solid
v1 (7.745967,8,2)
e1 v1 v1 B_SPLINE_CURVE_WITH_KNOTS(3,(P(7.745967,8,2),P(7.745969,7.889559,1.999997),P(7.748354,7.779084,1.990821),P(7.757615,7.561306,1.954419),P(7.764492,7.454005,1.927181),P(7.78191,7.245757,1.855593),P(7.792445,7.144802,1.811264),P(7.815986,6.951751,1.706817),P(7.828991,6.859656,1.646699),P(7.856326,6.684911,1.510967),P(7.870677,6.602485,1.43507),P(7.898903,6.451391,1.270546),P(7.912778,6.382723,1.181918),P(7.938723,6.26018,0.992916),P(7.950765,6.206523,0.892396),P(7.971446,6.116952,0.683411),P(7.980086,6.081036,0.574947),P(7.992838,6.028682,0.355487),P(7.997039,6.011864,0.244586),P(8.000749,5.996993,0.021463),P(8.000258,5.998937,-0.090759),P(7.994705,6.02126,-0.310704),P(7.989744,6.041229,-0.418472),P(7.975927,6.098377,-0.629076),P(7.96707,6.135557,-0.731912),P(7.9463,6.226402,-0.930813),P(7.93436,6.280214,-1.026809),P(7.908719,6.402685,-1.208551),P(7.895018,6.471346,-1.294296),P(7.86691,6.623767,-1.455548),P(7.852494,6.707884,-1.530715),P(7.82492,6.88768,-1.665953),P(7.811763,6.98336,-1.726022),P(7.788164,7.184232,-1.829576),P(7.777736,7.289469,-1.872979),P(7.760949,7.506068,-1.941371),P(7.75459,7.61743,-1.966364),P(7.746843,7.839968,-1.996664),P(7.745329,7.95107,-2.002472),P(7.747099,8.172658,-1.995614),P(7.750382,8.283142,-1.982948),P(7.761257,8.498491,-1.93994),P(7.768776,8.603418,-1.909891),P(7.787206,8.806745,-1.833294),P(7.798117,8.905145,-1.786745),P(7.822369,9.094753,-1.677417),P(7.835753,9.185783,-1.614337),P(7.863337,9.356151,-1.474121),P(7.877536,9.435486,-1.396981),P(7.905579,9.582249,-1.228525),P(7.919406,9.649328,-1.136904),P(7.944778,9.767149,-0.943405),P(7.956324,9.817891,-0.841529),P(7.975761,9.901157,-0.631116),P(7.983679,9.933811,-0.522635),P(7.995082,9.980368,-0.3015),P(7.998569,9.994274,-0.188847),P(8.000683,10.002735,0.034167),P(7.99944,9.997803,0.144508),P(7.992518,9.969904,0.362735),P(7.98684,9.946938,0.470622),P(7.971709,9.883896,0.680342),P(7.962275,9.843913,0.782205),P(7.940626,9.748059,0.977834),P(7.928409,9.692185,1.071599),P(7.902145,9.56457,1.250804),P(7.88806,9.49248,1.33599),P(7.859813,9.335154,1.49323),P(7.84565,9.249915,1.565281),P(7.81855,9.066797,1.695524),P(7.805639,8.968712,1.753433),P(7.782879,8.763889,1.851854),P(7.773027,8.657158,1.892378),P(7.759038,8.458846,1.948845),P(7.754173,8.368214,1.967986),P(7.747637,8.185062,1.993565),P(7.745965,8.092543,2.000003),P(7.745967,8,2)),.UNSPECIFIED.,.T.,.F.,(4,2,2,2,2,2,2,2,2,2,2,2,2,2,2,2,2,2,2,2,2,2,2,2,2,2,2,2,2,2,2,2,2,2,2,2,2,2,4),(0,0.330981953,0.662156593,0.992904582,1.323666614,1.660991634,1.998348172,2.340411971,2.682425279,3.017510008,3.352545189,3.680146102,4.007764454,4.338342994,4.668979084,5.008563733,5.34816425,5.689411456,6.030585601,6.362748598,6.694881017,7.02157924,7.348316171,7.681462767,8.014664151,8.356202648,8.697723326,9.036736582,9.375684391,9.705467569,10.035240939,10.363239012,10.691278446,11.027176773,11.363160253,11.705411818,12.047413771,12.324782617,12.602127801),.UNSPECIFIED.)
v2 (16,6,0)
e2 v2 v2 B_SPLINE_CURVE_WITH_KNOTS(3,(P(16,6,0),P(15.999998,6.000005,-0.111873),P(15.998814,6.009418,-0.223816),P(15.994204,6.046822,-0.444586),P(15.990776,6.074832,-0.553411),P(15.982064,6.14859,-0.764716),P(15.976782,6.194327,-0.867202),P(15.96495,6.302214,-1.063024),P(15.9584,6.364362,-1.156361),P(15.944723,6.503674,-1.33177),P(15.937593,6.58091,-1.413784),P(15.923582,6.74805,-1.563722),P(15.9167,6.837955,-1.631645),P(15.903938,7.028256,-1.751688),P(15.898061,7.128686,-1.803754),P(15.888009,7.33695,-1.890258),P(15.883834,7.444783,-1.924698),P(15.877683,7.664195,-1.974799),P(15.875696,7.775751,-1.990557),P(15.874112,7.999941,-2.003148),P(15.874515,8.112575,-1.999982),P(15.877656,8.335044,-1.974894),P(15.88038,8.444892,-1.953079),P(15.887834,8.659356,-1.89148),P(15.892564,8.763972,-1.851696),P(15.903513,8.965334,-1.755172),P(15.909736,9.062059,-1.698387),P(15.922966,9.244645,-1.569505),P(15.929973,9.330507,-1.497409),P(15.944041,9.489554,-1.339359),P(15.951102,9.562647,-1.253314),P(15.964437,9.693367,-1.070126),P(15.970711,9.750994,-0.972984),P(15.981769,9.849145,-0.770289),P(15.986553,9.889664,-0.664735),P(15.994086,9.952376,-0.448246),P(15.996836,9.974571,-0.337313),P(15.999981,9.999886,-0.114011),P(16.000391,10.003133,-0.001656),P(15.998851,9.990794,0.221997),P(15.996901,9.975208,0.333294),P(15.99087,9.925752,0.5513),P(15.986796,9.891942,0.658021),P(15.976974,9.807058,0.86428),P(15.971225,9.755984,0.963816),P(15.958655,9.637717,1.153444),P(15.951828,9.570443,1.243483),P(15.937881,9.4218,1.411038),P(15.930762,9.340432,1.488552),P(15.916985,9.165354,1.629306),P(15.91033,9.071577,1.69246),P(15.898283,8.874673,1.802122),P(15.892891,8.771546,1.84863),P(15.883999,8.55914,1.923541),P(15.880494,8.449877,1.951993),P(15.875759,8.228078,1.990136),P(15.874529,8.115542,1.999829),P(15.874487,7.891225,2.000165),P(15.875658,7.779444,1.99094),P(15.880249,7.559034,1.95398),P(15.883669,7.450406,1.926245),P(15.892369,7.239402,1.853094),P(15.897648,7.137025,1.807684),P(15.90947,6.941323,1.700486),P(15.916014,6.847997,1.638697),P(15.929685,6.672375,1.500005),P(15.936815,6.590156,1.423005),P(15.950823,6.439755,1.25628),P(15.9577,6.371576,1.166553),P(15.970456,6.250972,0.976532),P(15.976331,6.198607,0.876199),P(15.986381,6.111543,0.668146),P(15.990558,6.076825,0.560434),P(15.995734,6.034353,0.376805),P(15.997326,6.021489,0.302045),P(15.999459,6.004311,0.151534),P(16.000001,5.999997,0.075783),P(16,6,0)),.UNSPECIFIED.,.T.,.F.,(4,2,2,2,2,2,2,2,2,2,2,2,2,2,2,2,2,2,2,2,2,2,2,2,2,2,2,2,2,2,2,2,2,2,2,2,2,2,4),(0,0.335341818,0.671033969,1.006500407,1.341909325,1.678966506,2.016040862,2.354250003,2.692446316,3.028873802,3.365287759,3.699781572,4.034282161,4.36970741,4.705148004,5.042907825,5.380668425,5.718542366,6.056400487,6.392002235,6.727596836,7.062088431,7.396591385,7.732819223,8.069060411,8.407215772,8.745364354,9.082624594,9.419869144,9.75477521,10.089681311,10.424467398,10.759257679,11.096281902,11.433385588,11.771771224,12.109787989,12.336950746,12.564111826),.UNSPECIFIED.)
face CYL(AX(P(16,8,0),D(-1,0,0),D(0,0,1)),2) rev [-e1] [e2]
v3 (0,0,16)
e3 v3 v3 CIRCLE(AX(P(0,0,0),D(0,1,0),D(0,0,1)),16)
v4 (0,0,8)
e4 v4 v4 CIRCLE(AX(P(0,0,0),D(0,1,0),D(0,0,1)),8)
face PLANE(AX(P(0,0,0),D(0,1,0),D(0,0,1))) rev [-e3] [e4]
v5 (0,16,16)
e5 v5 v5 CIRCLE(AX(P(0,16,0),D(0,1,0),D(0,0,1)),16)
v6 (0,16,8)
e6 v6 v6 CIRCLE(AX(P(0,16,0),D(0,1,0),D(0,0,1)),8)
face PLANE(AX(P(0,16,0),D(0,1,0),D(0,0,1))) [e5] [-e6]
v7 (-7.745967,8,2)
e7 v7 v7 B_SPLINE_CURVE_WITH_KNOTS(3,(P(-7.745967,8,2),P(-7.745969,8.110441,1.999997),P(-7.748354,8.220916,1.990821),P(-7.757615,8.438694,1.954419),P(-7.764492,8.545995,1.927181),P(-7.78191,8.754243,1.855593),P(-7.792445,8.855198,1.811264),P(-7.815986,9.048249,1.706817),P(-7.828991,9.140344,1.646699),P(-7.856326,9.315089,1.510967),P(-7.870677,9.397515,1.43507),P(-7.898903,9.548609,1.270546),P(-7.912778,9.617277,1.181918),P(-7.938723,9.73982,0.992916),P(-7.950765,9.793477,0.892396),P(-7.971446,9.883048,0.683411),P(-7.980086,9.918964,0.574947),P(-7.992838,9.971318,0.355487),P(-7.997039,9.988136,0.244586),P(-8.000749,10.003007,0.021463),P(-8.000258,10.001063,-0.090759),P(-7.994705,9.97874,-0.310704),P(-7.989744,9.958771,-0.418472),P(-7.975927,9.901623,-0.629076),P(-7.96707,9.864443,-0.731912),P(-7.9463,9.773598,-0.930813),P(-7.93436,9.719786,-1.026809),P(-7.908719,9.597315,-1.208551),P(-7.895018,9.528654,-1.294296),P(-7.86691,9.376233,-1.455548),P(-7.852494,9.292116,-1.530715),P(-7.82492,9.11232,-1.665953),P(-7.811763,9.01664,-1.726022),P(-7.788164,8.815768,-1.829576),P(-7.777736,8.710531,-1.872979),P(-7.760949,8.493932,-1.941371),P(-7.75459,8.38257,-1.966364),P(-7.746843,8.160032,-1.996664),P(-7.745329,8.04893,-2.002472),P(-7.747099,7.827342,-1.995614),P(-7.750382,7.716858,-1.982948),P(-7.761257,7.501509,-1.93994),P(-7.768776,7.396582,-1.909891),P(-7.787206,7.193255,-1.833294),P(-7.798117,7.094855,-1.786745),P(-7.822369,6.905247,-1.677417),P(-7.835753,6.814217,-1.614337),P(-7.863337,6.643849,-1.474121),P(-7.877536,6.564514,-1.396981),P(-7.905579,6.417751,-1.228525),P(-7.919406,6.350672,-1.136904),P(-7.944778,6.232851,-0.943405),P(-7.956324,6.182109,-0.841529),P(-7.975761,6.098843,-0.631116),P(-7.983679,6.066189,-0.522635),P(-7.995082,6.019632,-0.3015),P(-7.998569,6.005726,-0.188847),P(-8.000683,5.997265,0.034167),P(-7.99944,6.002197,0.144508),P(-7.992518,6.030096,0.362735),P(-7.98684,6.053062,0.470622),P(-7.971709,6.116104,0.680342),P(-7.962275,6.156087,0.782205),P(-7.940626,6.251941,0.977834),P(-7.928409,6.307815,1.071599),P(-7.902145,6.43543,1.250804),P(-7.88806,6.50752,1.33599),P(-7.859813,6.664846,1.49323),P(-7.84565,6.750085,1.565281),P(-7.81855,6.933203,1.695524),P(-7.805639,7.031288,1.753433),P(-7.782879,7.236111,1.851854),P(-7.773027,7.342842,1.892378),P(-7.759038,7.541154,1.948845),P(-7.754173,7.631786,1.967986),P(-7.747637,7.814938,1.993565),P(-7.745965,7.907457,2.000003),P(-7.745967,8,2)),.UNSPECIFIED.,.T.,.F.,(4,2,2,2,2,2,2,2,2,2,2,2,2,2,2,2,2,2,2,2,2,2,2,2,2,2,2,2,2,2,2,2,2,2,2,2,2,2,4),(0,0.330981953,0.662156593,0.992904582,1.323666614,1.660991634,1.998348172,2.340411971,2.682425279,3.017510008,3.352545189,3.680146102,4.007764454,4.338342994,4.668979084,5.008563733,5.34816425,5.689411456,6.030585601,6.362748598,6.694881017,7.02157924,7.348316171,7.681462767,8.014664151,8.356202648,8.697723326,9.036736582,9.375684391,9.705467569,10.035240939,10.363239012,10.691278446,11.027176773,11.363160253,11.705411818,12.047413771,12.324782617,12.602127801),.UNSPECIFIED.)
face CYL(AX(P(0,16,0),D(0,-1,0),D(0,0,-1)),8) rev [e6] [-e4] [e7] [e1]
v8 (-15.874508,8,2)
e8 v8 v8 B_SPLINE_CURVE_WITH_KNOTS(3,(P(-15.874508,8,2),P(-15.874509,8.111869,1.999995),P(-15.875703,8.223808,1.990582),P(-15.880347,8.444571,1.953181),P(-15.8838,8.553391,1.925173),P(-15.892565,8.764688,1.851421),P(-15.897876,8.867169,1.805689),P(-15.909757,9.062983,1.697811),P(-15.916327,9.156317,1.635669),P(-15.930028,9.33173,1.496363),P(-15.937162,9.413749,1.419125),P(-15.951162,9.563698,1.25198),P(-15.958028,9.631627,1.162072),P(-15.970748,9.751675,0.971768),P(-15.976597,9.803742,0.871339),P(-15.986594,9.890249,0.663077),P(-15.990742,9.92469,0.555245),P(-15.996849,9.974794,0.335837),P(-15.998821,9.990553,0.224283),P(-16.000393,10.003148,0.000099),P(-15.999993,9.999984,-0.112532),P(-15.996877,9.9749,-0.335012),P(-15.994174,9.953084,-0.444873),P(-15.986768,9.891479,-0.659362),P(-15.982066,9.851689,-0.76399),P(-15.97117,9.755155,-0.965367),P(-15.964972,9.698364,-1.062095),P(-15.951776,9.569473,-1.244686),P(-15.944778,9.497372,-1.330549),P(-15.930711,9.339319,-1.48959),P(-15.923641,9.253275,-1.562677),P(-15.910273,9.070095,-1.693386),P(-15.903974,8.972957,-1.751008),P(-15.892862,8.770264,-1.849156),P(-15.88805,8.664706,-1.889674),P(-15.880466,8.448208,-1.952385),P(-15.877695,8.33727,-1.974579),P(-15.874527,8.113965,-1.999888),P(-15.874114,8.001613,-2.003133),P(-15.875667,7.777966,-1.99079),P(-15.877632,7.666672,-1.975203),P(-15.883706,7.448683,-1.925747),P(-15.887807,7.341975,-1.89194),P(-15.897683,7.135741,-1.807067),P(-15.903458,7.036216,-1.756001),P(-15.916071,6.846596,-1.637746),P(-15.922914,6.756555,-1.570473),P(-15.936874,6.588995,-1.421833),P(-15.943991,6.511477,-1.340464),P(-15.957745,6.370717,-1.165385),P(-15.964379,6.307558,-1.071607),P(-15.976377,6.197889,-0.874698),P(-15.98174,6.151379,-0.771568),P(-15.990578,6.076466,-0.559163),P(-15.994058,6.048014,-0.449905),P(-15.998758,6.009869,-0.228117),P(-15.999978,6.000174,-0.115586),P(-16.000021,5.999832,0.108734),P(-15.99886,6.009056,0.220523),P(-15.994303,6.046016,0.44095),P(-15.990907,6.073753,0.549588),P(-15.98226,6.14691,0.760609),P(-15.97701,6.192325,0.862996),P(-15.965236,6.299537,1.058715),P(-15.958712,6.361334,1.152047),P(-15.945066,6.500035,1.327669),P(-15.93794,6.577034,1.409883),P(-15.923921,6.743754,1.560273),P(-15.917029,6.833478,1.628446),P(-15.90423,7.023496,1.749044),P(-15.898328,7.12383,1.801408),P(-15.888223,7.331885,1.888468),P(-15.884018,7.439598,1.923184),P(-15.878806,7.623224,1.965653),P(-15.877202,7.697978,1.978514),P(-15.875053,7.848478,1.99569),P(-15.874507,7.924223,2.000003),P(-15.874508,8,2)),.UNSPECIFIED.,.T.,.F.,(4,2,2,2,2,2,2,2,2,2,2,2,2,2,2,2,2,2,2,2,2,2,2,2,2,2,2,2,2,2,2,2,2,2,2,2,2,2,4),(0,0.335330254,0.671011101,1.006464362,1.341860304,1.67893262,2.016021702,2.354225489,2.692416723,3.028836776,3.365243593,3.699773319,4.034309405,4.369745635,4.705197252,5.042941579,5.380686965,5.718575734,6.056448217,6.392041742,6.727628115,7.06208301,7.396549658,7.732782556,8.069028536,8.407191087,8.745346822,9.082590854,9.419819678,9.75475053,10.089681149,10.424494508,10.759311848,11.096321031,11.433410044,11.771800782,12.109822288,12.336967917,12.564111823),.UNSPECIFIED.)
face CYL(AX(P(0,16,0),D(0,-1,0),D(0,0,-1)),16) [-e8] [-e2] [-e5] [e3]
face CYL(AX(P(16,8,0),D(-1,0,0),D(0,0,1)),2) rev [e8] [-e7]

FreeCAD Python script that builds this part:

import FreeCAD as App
import Part
import Sketcher

doc = App.newDocument("Part")
body = doc.addObject("PartDesign::Body", "Body")

# Sketch on XZ plane
sketch1 = body.newObject("Sketcher::SketchObject", "Sketch")
sketch1.AttachmentSupport = (doc.getObject("XZ_Plane"), [""])
sketch1.MapMode = "FlatFace"
sketch1.addGeometry([
    Part.Circle(App.Vector(0, 0, 0), App.Vector(0, 0, 1), 16),
    Part.Circle(App.Vector(0, 0, 0), App.Vector(0, 0, 1), 8),
], False)
sketch1.addConstraint([
    Sketcher.Constraint("Coincident", 0, 3, -1, 1),
    Sketcher.Constraint("Coincident", 1, 3, -1, 1),
    Sketcher.Constraint("Diameter", 0, 32.0),
    Sketcher.Constraint("Diameter", 1, 16.0),
])
pad1 = body.newObject("PartDesign::Pad", "Pad")
pad1.Profile = sketch1
pad1.Length = 16
pad1.Reversed = True

# Sketch on YZ plane
sketch2 = body.newObject("Sketcher::SketchObject", "Sketch001")
sketch2.AttachmentSupport = (doc.getObject("YZ_Plane"), [""])
sketch2.MapMode = "FlatFace"
sketch2.addGeometry(Part.Circle(App.Vector(8, 0, 0), App.Vector(0, 0, 1), 2), False)
sketch2.addConstraint([
    Sketcher.Constraint("PointOnObject", 0, 3, -1),
    Sketcher.Constraint("Diameter", 0, 4.0),
    Sketcher.Constraint("DistanceX", -1, 1, 0, 3, 8.0),
])
pocket1 = body.newObject("PartDesign::Pocket", "Pocket")
pocket1.Profile = sketch2
pocket1.Type = "ThroughAll"
pocket1.Midplane = True

doc.recompute()
